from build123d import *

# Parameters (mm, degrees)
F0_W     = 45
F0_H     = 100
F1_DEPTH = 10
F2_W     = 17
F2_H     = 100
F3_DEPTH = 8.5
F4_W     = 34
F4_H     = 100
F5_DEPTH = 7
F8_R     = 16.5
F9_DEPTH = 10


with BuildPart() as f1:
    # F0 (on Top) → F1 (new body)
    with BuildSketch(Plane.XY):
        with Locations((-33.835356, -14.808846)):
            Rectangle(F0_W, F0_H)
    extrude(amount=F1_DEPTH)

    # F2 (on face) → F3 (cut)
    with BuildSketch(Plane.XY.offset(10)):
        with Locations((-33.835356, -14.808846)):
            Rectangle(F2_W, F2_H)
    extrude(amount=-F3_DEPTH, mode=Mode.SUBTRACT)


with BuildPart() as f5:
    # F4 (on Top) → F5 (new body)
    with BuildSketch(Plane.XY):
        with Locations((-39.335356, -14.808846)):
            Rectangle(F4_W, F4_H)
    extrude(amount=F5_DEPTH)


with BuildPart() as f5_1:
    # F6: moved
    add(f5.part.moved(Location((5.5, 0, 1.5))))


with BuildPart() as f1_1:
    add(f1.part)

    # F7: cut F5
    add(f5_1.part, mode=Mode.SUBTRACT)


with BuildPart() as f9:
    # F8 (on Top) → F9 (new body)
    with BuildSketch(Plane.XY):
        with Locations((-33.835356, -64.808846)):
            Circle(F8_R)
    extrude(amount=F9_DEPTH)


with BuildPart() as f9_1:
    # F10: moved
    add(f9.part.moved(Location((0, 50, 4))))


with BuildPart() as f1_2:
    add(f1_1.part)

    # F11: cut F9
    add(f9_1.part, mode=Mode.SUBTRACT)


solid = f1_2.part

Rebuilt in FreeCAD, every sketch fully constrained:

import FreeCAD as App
import Part
import Sketcher

V = App.Vector

doc = App.newDocument("Part")
body = doc.addObject("PartDesign::Body", "Body")

sketch1 = body.newObject("Sketcher::SketchObject", "Sketch")
sketch1.AttachmentSupport = (doc.getObject("XY_Plane"), [""])
sketch1.MapMode = "FlatFace"
sketch1.addGeometry(Part.LineSegment(V(-56, 35, 0), V(-56, -65, 0)), False)
sketch1.addGeometry(Part.LineSegment(V(-56, -65, 0), V(-11, -65, 0)), False)
sketch1.addGeometry(Part.LineSegment(V(-11, -65, 0), V(-11, 35, 0)), False)
sketch1.addGeometry(Part.LineSegment(V(-11, 35, 0), V(-56, 35, 0)), False)
sketch1.addConstraint(Sketcher.Constraint("Coincident", 0, 2, 1, 1))
sketch1.addConstraint(Sketcher.Constraint("Coincident", 1, 2, 2, 1))
sketch1.addConstraint(Sketcher.Constraint("Coincident", 2, 2, 3, 1))
sketch1.addConstraint(Sketcher.Constraint("Coincident", 3, 2, 0, 1))
sketch1.addConstraint(Sketcher.Constraint("Vertical", 0))
sketch1.addConstraint(Sketcher.Constraint("Horizontal", 1))
sketch1.addConstraint(Sketcher.Constraint("Vertical", 2))
sketch1.addConstraint(Sketcher.Constraint("Horizontal", 3))
sketch1.addConstraint(Sketcher.Constraint("DistanceX", 1, 1, 1, 2, 45.0))
sketch1.addConstraint(Sketcher.Constraint("DistanceY", 0, 2, 0, 1, 100.0))
sketch1.addConstraint(Sketcher.Constraint("DistanceX", 0, 2, -1, 1, 56.335356))
sketch1.addConstraint(Sketcher.Constraint("DistanceY", 0, 2, -1, 1, 64.808846))
pad1 = body.newObject("PartDesign::Pad", "Pad")
pad1.Profile = sketch1
pad1.Length = 10

sketch2 = body.newObject("Sketcher::SketchObject", "Sketch001")
sketch2.AttachmentSupport = (doc.getObject("XY_Plane"), [""])
sketch2.MapMode = "FlatFace"
sketch2.AttachmentOffset = App.Placement(V(0, 0, 10), App.Rotation())
sketch2.addGeometry(Part.LineSegment(V(-42, 35, 0), V(-42, -65, 0)), False)
sketch2.addGeometry(Part.LineSegment(V(-42, -65, 0), V(-25, -65, 0)), False)
sketch2.addGeometry(Part.LineSegment(V(-25, -65, 0), V(-25, 35, 0)), False)
sketch2.addGeometry(Part.LineSegment(V(-25, 35, 0), V(-42, 35, 0)), False)
sketch2.addConstraint(Sketcher.Constraint("Coincident", 0, 2, 1, 1))
sketch2.addConstraint(Sketcher.Constraint("Coincident", 1, 2, 2, 1))
sketch2.addConstraint(Sketcher.Constraint("Coincident", 2, 2, 3, 1))
sketch2.addConstraint(Sketcher.Constraint("Coincident", 3, 2, 0, 1))
sketch2.addConstraint(Sketcher.Constraint("Vertical", 0))
sketch2.addConstraint(Sketcher.Constraint("Horizontal", 1))
sketch2.addConstraint(Sketcher.Constraint("Vertical", 2))
sketch2.addConstraint(Sketcher.Constraint("Horizontal", 3))
sketch2.addConstraint(Sketcher.Constraint("DistanceX", 1, 1, 1, 2, 17.0))
sketch2.addConstraint(Sketcher.Constraint("DistanceY", 0, 2, 0, 1, 100.0))
sketch2.addConstraint(Sketcher.Constraint("DistanceX", 0, 2, -1, 1, 42.335356))
sketch2.addConstraint(Sketcher.Constraint("DistanceY", 0, 2, -1, 1, 64.808846))
pocket1 = body.newObject("PartDesign::Pocket", "Pocket")
pocket1.Profile = sketch2
pocket1.Length = 8.5
body2 = doc.addObject("PartDesign::Body", "Body001")

sketch3 = body2.newObject("Sketcher::SketchObject", "Sketch002")
sketch3.AttachmentSupport = (doc.getObject("XY_Plane001"), [""])
sketch3.MapMode = "FlatFace"
sketch3.addGeometry(Part.LineSegment(V(-56, 35, 0), V(-56, -65, 0)), False)
sketch3.addGeometry(Part.LineSegment(V(-56, -65, 0), V(-22, -65, 0)), False)
sketch3.addGeometry(Part.LineSegment(V(-22, -65, 0), V(-22, 35, 0)), False)
sketch3.addGeometry(Part.LineSegment(V(-22, 35, 0), V(-56, 35, 0)), False)
sketch3.addConstraint(Sketcher.Constraint("Coincident", 0, 2, 1, 1))
sketch3.addConstraint(Sketcher.Constraint("Coincident", 1, 2, 2, 1))
sketch3.addConstraint(Sketcher.Constraint("Coincident", 2, 2, 3, 1))
sketch3.addConstraint(Sketcher.Constraint("Coincident", 3, 2, 0, 1))
sketch3.addConstraint(Sketcher.Constraint("Vertical", 0))
sketch3.addConstraint(Sketcher.Constraint("Horizontal", 1))
sketch3.addConstraint(Sketcher.Constraint("Vertical", 2))
sketch3.addConstraint(Sketcher.Constraint("Horizontal", 3))
sketch3.addConstraint(Sketcher.Constraint("DistanceX", 1, 1, 1, 2, 34.0))
sketch3.addConstraint(Sketcher.Constraint("DistanceY", 0, 2, 0, 1, 100.0))
sketch3.addConstraint(Sketcher.Constraint("DistanceX", 0, 2, -1, 1, 56.335356))
sketch3.addConstraint(Sketcher.Constraint("DistanceY", 0, 2, -1, 1, 64.808846))
pad2 = body2.newObject("PartDesign::Pad", "Pad001")
pad2.Profile = sketch3
pad2.Length = 7
body3 = doc.addObject("PartDesign::Body", "Body002")
doc.recompute()

body2.Placement = App.Placement(V(5.5, 0, 1.5), App.Rotation(V(0, 0, 1), 0))
boolean = body3.newObject("PartDesign::Boolean", "Boolean")
boolean.Type = "Fuse"
boolean.addObjects([body2])
doc.recompute()

boolean2 = body.newObject("PartDesign::Boolean", "Boolean001")
boolean2.Type = "Cut"
boolean2.addObjects([body3])
body4 = doc.addObject("PartDesign::Body", "Body003")

sketch4 = body4.newObject("Sketcher::SketchObject", "Sketch003")
sketch4.AttachmentSupport = (doc.getObject("XY_Plane003"), [""])
sketch4.MapMode = "FlatFace"
sketch4.addGeometry(Part.Circle(V(-34, -65, 0), V(0, 0, 1), 16), False)
sketch4.addConstraint(Sketcher.Constraint("Diameter", 0, 33.0))
sketch4.addConstraint(Sketcher.Constraint("DistanceX", 0, 3, -1, 1, 33.835356))
sketch4.addConstraint(Sketcher.Constraint("DistanceY", 0, 3, -1, 1, 64.808846))
pad3 = body4.newObject("PartDesign::Pad", "Pad002")
pad3.Profile = sketch4
pad3.Length = 10
body5 = doc.addObject("PartDesign::Body", "Body004")
doc.recompute()

body4.Placement = App.Placement(V(0, 50, 4), App.Rotation(V(0, 0, 1), 0))
boolean3 = body5.newObject("PartDesign::Boolean", "Boolean002")
boolean3.Type = "Fuse"
boolean3.addObjects([body4])
doc.recompute()

boolean4 = body.newObject("PartDesign::Boolean", "Boolean003")
boolean4.Type = "Cut"
boolean4.addObjects([body5])

doc.recompute()
